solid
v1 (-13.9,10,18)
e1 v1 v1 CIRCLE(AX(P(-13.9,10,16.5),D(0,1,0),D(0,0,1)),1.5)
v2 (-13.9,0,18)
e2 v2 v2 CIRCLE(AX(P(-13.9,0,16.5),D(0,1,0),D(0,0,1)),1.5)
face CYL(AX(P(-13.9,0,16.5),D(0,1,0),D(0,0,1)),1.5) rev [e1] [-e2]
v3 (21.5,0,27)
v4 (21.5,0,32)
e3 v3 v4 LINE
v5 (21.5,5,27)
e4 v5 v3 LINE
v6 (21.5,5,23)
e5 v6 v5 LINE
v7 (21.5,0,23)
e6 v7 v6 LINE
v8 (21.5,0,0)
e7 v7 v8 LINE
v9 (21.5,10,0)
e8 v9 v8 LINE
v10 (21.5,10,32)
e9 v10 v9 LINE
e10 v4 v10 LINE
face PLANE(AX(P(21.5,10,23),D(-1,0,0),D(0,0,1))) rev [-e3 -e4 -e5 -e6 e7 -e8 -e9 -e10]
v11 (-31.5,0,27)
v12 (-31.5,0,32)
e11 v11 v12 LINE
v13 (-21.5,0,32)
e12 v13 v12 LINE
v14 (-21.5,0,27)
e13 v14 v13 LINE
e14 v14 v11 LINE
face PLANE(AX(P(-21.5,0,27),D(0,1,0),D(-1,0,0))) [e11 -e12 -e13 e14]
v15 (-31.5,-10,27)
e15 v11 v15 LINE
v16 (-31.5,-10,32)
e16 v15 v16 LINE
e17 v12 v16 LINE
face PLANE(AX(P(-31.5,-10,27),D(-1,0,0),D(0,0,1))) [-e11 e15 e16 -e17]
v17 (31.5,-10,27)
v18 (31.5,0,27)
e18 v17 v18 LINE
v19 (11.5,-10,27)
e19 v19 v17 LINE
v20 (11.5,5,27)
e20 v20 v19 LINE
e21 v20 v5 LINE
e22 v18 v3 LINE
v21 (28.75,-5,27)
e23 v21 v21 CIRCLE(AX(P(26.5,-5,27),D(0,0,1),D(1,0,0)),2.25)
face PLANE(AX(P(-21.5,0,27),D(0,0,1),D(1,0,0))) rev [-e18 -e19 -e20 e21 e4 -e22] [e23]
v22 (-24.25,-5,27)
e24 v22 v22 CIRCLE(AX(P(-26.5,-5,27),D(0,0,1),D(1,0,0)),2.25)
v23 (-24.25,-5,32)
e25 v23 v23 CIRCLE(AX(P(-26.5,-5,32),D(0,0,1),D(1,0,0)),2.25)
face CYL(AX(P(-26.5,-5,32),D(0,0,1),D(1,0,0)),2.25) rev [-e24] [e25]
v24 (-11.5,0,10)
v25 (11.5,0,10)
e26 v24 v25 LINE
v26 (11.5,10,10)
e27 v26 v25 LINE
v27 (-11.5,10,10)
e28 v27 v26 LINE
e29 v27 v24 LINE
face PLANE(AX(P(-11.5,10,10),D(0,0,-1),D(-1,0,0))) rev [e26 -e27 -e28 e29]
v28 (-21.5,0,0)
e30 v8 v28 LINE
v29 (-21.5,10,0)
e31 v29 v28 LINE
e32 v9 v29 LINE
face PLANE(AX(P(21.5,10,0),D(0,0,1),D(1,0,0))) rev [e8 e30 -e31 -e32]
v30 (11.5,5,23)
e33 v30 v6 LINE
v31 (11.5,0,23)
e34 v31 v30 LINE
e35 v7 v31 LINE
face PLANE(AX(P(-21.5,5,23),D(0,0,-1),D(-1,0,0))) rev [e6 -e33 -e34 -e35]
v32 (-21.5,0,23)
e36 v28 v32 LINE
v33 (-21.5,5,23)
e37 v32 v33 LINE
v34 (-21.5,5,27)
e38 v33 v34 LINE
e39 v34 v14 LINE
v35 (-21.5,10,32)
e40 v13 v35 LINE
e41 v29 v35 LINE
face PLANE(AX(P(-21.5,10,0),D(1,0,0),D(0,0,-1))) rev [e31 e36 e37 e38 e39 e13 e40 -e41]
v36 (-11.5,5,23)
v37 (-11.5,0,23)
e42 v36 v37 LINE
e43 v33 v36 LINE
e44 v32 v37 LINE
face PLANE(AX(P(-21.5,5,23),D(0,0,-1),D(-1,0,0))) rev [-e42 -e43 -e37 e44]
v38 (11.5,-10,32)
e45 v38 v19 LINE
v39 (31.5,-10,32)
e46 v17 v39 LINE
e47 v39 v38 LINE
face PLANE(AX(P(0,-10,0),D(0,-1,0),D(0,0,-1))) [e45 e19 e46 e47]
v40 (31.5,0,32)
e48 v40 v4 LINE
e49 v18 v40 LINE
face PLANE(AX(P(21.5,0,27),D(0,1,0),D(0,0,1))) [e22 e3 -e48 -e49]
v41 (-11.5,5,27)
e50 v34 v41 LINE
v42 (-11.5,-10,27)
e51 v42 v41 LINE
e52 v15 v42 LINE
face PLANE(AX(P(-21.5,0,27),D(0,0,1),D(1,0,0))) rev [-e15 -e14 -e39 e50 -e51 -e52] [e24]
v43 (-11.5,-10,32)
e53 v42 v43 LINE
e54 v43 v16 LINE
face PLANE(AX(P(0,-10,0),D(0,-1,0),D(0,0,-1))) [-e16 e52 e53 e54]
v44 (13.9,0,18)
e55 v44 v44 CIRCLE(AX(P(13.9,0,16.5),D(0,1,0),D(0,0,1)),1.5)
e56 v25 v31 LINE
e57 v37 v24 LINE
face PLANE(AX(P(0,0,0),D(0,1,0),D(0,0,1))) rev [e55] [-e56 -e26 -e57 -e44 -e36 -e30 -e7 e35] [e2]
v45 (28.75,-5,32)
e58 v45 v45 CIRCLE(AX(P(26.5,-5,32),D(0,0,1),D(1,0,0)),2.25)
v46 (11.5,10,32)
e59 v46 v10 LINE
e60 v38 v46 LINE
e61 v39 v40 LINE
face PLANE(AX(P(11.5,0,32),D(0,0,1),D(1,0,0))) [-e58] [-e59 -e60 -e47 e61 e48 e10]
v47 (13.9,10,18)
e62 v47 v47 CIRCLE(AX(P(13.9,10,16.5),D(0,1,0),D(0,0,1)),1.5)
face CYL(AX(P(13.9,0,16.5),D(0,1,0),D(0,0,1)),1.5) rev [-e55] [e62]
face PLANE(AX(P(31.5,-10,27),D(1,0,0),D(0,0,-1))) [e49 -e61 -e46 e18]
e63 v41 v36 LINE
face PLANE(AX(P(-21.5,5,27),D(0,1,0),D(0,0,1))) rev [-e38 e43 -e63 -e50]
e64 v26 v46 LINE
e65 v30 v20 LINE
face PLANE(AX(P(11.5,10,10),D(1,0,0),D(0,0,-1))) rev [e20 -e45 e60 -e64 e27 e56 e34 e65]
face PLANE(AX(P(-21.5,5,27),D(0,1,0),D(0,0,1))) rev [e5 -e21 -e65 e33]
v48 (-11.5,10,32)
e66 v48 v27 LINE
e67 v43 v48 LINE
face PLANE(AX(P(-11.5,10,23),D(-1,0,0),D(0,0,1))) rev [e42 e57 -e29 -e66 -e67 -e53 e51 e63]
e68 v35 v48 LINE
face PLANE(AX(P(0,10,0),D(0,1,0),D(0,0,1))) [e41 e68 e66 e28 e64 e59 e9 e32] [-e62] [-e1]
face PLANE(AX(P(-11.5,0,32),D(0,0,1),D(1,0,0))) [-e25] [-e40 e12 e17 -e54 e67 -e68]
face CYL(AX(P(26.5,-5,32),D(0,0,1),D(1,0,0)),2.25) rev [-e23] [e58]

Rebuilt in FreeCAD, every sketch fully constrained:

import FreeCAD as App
import Part
import Sketcher

V = App.Vector

doc = App.newDocument("Part")
body = doc.addObject("PartDesign::Body", "Body")

sketch1 = body.newObject("Sketcher::SketchObject", "Sketch")
sketch1.AttachmentSupport = (doc.getObject("XZ_Plane"), [""])
sketch1.MapMode = "FlatFace"
sketch1.addGeometry([
    Part.LineSegment(V(-22, 0, 0), V(-22, 23, 0)),
    Part.LineSegment(V(-22, 23, 0), V(-12, 23, 0)),
    Part.LineSegment(V(-12, 23, 0), V(-12, 10, 0)),
    Part.LineSegment(V(-12, 10, 0), V(12, 10, 0)),
    Part.LineSegment(V(12, 10, 0), V(12, 23, 0)),
    Part.LineSegment(V(12, 23, 0), V(22, 23, 0)),
    Part.LineSegment(V(22, 23, 0), V(22, 0, 0)),
    Part.LineSegment(V(22, 0, 0), V(-22, 0, 0)),
], False)
sketch1.addConstraint([
    Sketcher.Constraint("Coincident", 0, 2, 1, 1),
    Sketcher.Constraint("Coincident", 1, 2, 2, 1),
    Sketcher.Constraint("Coincident", 2, 2, 3, 1),
    Sketcher.Constraint("Coincident", 3, 2, 4, 1),
    Sketcher.Constraint("Coincident", 4, 2, 5, 1),
    Sketcher.Constraint("Coincident", 5, 2, 6, 1),
    Sketcher.Constraint("Coincident", 6, 2, 7, 1),
    Sketcher.Constraint("Coincident", 7, 2, 0, 1),
    Sketcher.Constraint("Vertical", 0),
    Sketcher.Constraint("Horizontal", 1),
    Sketcher.Constraint("Vertical", 2),
    Sketcher.Constraint("Horizontal", 3),
    Sketcher.Constraint("Vertical", 4),
    Sketcher.Constraint("Horizontal", 5),
    Sketcher.Constraint("Vertical", 6),
    Sketcher.Constraint("Horizontal", 7),
    Sketcher.Constraint("Symmetric", 6, 2, 7, 2, -1, 1),
    Sketcher.Constraint("Symmetric", 1, 2, 4, 2, -2),
    Sketcher.Constraint("Equal", 3, 0),
    Sketcher.Constraint("DistanceX", 1, 1, 1, 2, 10.0),
    Sketcher.Constraint("DistanceX", 3, 1, 3, 2, 23.0),
    Sketcher.Constraint("DistanceY", 2, 2, 2, 1, 13.0),
])
pad1 = body.newObject("PartDesign::Pad", "Pad")
pad1.Profile = sketch1
pad1.Length = 10
pad1.Reversed = True

sketch2 = body.newObject("Sketcher::SketchObject", "Sketch001")
sketch2.AttachmentSupport = (doc.getObject("XZ_Plane"), [""])
sketch2.MapMode = "FlatFace"
sketch2.AttachmentOffset = App.Placement(V(0, 0, -10), App.Rotation())
sketch2.addGeometry([
    Part.Circle(V(-13.9, 16.5, 0), V(0, 0, 1), 1.5),
    Part.Circle(V(13.9, 16.5, 0), V(0, 0, 1), 1.5),
], False)
sketch2.addConstraint([
    Sketcher.Constraint("Equal", 0, 1),
    Sketcher.Constraint("Symmetric", 0, 3, 1, 3, -2),
    Sketcher.Constraint("Diameter", 0, 3.0),
    Sketcher.Constraint("DistanceX", 0, 3, -1, 1, 13.9),
    Sketcher.Constraint("DistanceY", -1, 1, 0, 3, 16.5),
])
pocket1 = body.newObject("PartDesign::Pocket", "Pocket")
pocket1.Profile = sketch2
pocket1.Type = "ThroughAll"
pocket1.Reversed = True

sketch3 = body.newObject("Sketcher::SketchObject", "Sketch002")
sketch3.AttachmentSupport = (doc.getObject("XZ_Plane"), [""])
sketch3.MapMode = "FlatFace"
sketch3.AttachmentOffset = App.Placement(V(0, 0, -10), App.Rotation())
sketch3.addGeometry([
    Part.LineSegment(V(-22, 23, 0), V(-22, 32, 0)),
    Part.LineSegment(V(-22, 32, 0), V(-12, 32, 0)),
    Part.LineSegment(V(-12, 32, 0), V(-12, 23, 0)),
    Part.LineSegment(V(-12, 23, 0), V(-22, 23, 0)),
    Part.LineSegment(V(22, 23, 0), V(12, 23, 0)),
    Part.LineSegment(V(12, 23, 0), V(12, 32, 0)),
    Part.LineSegment(V(12, 32, 0), V(22, 32, 0)),
    Part.LineSegment(V(22, 32, 0), V(22, 23, 0)),
], False)
sketch3.addConstraint([
    Sketcher.Constraint("Coincident", 0, 2, 1, 1),
    Sketcher.Constraint("Coincident", 1, 2, 2, 1),
    Sketcher.Constraint("Coincident", 2, 2, 3, 1),
    Sketcher.Constraint("Coincident", 3, 2, 0, 1),
    Sketcher.Constraint("Coincident", 4, 2, 5, 1),
    Sketcher.Constraint("Coincident", 5, 2, 6, 1),
    Sketcher.Constraint("Coincident", 6, 2, 7, 1),
    Sketcher.Constraint("Coincident", 7, 2, 4, 1),
    Sketcher.Constraint("Vertical", 0),
    Sketcher.Constraint("Horizontal", 1),
    Sketcher.Constraint("Vertical", 2),
    Sketcher.Constraint("Horizontal", 3),
    Sketcher.Constraint("Horizontal", 4),
    Sketcher.Constraint("Vertical", 5),
    Sketcher.Constraint("Horizontal", 6),
    Sketcher.Constraint("Vertical", 7),
    Sketcher.Constraint("Symmetric", 2, 2, 4, 2, -2),
    Sketcher.Constraint("Symmetric", 0, 2, 6, 2, -2),
    Sketcher.Constraint("DistanceX", 1, 1, 1, 2, 10.0),
    Sketcher.Constraint("DistanceY", 0, 1, 0, 2, 9.0),
    Sketcher.Constraint("DistanceY", -1, 1, 0, 2, 32.0),
    Sketcher.Constraint("DistanceX", 2, 2, 4, 2, 23.0),
])
pad2 = body.newObject("PartDesign::Pad", "Pad001")
pad2.Profile = sketch3
pad2.Length = 10

sketch4 = body.newObject("Sketcher::SketchObject", "Sketch003")
sketch4.AttachmentSupport = (doc.getObject("YZ_Plane"), [""])
sketch4.MapMode = "FlatFace"
sketch4.AttachmentOffset = App.Placement(V(0, 0, 21.5), App.Rotation())
sketch4.addGeometry([
    Part.LineSegment(V(5, 27, 0), V(0, 27, 0)),
    Part.LineSegment(V(0, 27, 0), V(0, 23, 0)),
    Part.LineSegment(V(0, 23, 0), V(5, 23, 0)),
    Part.LineSegment(V(5, 23, 0), V(5, 27, 0)),
], False)
sketch4.addConstraint([
    Sketcher.Constraint("Coincident", 0, 2, 1, 1),
    Sketcher.Constraint("Coincident", 1, 2, 2, 1),
    Sketcher.Constraint("Coincident", 2, 2, 3, 1),
    Sketcher.Constraint("Coincident", 3, 2, 0, 1),
    Sketcher.Constraint("Horizontal", 0),
    Sketcher.Constraint("Vertical", 1),
    Sketcher.Constraint("Horizontal", 2),
    Sketcher.Constraint("Vertical", 3),
    Sketcher.Constraint("PointOnObject", 0, 2, -2),
    Sketcher.Constraint("DistanceX", 0, 2, 0, 1, 5.0),
    Sketcher.Constraint("DistanceY", 1, 2, 1, 1, 4.0),
    Sketcher.Constraint("DistanceY", -1, 1, 0, 2, 27.0),
])
pocket2 = body.newObject("PartDesign::Pocket", "Pocket001")
pocket2.Profile = sketch4
pocket2.Type = "ThroughAll"

sketch5 = body.newObject("Sketcher::SketchObject", "Sketch004")
sketch5.AttachmentSupport = (doc.getObject("XZ_Plane"), [""])
sketch5.MapMode = "FlatFace"
sketch5.addGeometry([
    Part.LineSegment(V(-22, 32, 0), V(-22, 27, 0)),
    Part.LineSegment(V(-22, 27, 0), V(-12, 27, 0)),
    Part.LineSegment(V(-12, 27, 0), V(-12, 32, 0)),
    Part.LineSegment(V(-12, 32, 0), V(-22, 32, 0)),
    Part.LineSegment(V(12, 32, 0), V(12, 27, 0)),
    Part.LineSegment(V(12, 27, 0), V(22, 27, 0)),
    Part.LineSegment(V(22, 27, 0), V(22, 32, 0)),
    Part.LineSegment(V(22, 32, 0), V(12, 32, 0)),
], False)
sketch5.addConstraint([
    Sketcher.Constraint("Coincident", 0, 2, 1, 1),
    Sketcher.Constraint("Coincident", 1, 2, 2, 1),
    Sketcher.Constraint("Coincident", 2, 2, 3, 1),
    Sketcher.Constraint("Coincident", 3, 2, 0, 1),
    Sketcher.Constraint("Coincident", 4, 2, 5, 1),
    Sketcher.Constraint("Coincident", 5, 2, 6, 1),
    Sketcher.Constraint("Coincident", 6, 2, 7, 1),
    Sketcher.Constraint("Coincident", 7, 2, 4, 1),
    Sketcher.Constraint("Vertical", 0),
    Sketcher.Constraint("Horizontal", 1),
    Sketcher.Constraint("Vertical", 2),
    Sketcher.Constraint("Horizontal", 3),
    Sketcher.Constraint("Vertical", 4),
    Sketcher.Constraint("Horizontal", 5),
    Sketcher.Constraint("Vertical", 6),
    Sketcher.Constraint("Horizontal", 7),
    Sketcher.Constraint("Symmetric", 1, 2, 4, 2, -2),
    Sketcher.Constraint("Symmetric", 3, 2, 6, 2, -2),
    Sketcher.Constraint("DistanceX", 1, 1, 1, 2, 10.0),
    Sketcher.Constraint("DistanceY", 0, 2, 0, 1, 5.0),
    Sketcher.Constraint("DistanceY", -1, 1, 0, 2, 27.0),
    Sketcher.Constraint("DistanceX", 1, 2, 4, 2, 23.0),
])
pad3 = body.newObject("PartDesign::Pad", "Pad002")
pad3.Profile = sketch5
pad3.Length = 10

sketch6 = body.newObject("Sketcher::SketchObject", "Sketch005")
sketch6.AttachmentSupport = (doc.getObject("XY_Plane"), [""])
sketch6.MapMode = "FlatFace"
sketch6.AttachmentOffset = App.Placement(V(0, 0, 32), App.Rotation())
sketch6.addGeometry([
    Part.LineSegment(V(-32, 0, 0), V(-32, -10, 0)),
    Part.LineSegment(V(-32, -10, 0), V(-22, -10, 0)),
    Part.LineSegment(V(-22, -10, 0), V(-22, 0, 0)),
    Part.LineSegment(V(-22, 0, 0), V(-32, 0, 0)),
    Part.LineSegment(V(22, 0, 0), V(22, -10, 0)),
    Part.LineSegment(V(22, -10, 0), V(32, -10, 0)),
    Part.LineSegment(V(32, -10, 0), V(32, 0, 0)),
    Part.LineSegment(V(32, 0, 0), V(22, 0, 0)),
], False)
sketch6.addConstraint([
    Sketcher.Constraint("Coincident", 0, 2, 1, 1),
    Sketcher.Constraint("Coincident", 1, 2, 2, 1),
    Sketcher.Constraint("Coincident", 2, 2, 3, 1),
    Sketcher.Constraint("Coincident", 3, 2, 0, 1),
    Sketcher.Constraint("Coincident", 4, 2, 5, 1),
    Sketcher.Constraint("Coincident", 5, 2, 6, 1),
    Sketcher.Constraint("Coincident", 6, 2, 7, 1),
    Sketcher.Constraint("Coincident", 7, 2, 4, 1),
    Sketcher.Constraint("Vertical", 0),
    Sketcher.Constraint("Horizontal", 1),
    Sketcher.Constraint("Vertical", 2),
    Sketcher.Constraint("Horizontal", 3),
    Sketcher.Constraint("Vertical", 4),
    Sketcher.Constraint("Horizontal", 5),
    Sketcher.Constraint("Vertical", 6),
    Sketcher.Constraint("Horizontal", 7),
    Sketcher.Constraint("Symmetric", 3, 2, 6, 2, -1, 1),
    Sketcher.Constraint("Symmetric", 1, 2, 4, 2, -2),
    Sketcher.Constraint("PointOnObject", 2, 2, -1),
    Sketcher.Constraint("Equal", 7, 0),
    Sketcher.Constraint("DistanceX", 1, 1, 1, 2, 10.0),
    Sketcher.Constraint("DistanceX", 1, 2, 4, 2, 43.0),
])
pad4 = body.newObject("PartDesign::Pad", "Pad003")
pad4.Profile = sketch6
pad4.Length = 5
pad4.Reversed = True

sketch7 = body.newObject("Sketcher::SketchObject", "Sketch006")
sketch7.AttachmentSupport = (doc.getObject("XY_Plane"), [""])
sketch7.MapMode = "FlatFace"
sketch7.AttachmentOffset = App.Placement(V(0, 0, 32), App.Rotation())
sketch7.addGeometry([
    Part.Circle(V(-26.5, -5, 0), V(0, 0, 1), 2.2),
    Part.Circle(V(26.5, -5, 0), V(0, 0, 1), 2.2),
], False)
sketch7.addConstraint([
    Sketcher.Constraint("Equal", 0, 1),
    Sketcher.Constraint("Symmetric", 0, 3, 1, 3, -2),
    Sketcher.Constraint("Diameter", 0, 4.5),
    Sketcher.Constraint("DistanceY", 0, 3, -1, 1, 5.0),
    Sketcher.Constraint("DistanceX", 0, 3, 1, 3, 53.0),
])
doc.recompute()
hole = body.newObject("PartDesign::Hole", "Hole")
hole.Profile = sketch7
hole.ThreadType = "None"
hole.Diameter = 4.5
hole.DepthType = "ThroughAll"

doc.recompute()
